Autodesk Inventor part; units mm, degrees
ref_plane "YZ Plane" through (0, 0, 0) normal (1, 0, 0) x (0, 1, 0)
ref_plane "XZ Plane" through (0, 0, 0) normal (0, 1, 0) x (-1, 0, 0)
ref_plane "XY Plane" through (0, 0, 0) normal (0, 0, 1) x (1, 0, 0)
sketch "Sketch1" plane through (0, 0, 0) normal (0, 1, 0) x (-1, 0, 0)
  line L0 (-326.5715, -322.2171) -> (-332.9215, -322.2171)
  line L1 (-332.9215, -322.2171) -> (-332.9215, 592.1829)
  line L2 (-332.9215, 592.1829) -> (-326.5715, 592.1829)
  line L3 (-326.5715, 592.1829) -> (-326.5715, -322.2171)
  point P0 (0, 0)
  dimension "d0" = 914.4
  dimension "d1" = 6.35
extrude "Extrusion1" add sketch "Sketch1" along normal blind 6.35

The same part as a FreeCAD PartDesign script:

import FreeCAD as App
import Part
import Sketcher
Q = App.Units.Quantity

doc = App.newDocument("Part")
body = doc.addObject("PartDesign::Body", "Body")

# Sketch on XZ plane
sketch1 = body.newObject("Sketcher::SketchObject", "Sketch")
sketch1.AttachmentSupport = (doc.getObject("XZ_Plane"), [""])
sketch1.MapMode = "FlatFace"
sketch1.addGeometry([
    Part.LineSegment(App.Vector(332.9215, -322.2171, 0), App.Vector(326.5715, -322.2171, 0)),
    Part.LineSegment(App.Vector(326.5715, -322.2171, 0), App.Vector(326.5715, 592.1829, 0)),
    Part.LineSegment(App.Vector(326.5715, 592.1829, 0), App.Vector(332.9215, 592.1829, 0)),
    Part.LineSegment(App.Vector(332.9215, 592.1829, 0), App.Vector(332.9215, -322.2171, 0)),
], False)
sketch1.addConstraint([
    Sketcher.Constraint("Coincident", 0, 2, 1, 1),
    Sketcher.Constraint("Coincident", 1, 2, 2, 1),
    Sketcher.Constraint("Coincident", 2, 2, 3, 1),
    Sketcher.Constraint("Coincident", 3, 2, 0, 1),
    Sketcher.Constraint("Horizontal", 0),
    Sketcher.Constraint("Vertical", 1),
    Sketcher.Constraint("Horizontal", 2),
    Sketcher.Constraint("Vertical", 3),
    Sketcher.Constraint("DistanceY", 1, 1, 1, 2, Q("36 in")),
    Sketcher.Constraint("DistanceX", 0, 2, 0, 1, Q("0.25 in")),
    Sketcher.Constraint("DistanceX", -1, 1, 0, 2, 326.5715),
    Sketcher.Constraint("DistanceY", 0, 2, -1, 1, Q("12.6857087 in")),
])
pad1 = body.newObject("PartDesign::Pad", "Pad")
pad1.Profile = sketch1
pad1.Length = Q("0.25 in")
pad1.Reversed = True

doc.recompute()
